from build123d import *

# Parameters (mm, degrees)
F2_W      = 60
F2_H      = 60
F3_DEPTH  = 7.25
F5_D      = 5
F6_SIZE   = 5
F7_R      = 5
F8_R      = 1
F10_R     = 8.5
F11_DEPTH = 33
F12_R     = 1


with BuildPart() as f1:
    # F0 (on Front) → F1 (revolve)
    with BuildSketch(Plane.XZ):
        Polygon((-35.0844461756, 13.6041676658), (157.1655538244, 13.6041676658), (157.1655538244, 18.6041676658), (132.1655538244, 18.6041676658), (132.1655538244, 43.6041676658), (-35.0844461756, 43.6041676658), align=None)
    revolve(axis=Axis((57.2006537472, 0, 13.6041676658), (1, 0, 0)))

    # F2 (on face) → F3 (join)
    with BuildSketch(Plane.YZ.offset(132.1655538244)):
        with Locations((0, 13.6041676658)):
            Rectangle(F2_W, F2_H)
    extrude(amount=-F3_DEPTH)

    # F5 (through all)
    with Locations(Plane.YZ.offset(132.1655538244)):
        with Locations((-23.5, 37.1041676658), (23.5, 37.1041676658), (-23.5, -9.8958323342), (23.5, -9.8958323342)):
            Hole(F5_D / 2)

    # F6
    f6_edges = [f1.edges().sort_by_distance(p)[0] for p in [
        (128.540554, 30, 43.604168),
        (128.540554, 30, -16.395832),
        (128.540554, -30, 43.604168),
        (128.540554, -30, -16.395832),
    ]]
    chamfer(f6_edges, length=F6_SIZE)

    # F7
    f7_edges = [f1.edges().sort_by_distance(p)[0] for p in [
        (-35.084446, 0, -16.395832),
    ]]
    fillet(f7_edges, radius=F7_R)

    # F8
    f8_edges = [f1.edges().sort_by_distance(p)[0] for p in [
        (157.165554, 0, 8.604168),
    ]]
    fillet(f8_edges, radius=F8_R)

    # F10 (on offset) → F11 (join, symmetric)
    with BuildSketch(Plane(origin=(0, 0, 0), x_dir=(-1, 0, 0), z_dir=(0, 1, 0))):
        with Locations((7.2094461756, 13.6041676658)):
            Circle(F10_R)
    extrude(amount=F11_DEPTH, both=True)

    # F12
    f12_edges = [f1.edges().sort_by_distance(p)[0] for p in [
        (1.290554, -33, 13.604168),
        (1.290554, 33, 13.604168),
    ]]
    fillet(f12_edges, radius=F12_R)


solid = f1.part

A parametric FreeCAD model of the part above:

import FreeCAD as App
import Part
import Sketcher
from FreeCAD import Vector
Q = App.Units.Quantity


def edges_at(feature, points):
    """Names of the edges that pass closest to the given points."""
    edges = feature.Shape.Edges
    near = lambda p: min(range(len(edges)), key=lambda i: edges[i].distToShape(Part.Vertex(*p))[0])
    return sorted({f"Edge{near(p) + 1}" for p in points})


def add_polygon(sketch, points):
    """Adds a closed chain of lines whose ends are joined by coincident constraints."""
    first, n = sketch.GeometryCount, len(points)
    for a, b in zip(points, points[1:] + points[:1]):
        sketch.addGeometry(Part.LineSegment(App.Vector(*a, 0), App.Vector(*b, 0)), False)
    for i in range(n):
        sketch.addConstraint(Sketcher.Constraint("Coincident", first + i, 2, first + (i + 1) % n, 1))

doc = App.newDocument("Part")
params = doc.addObject("Spreadsheet::Sheet", "Params")
for row, (alias, value) in enumerate([
    ("sketch1_width", "25 mm"),
    ("sketch1_height", "5 mm"),
    ("sketch1_width2", "192.25 mm"),
    ("revolution_angle", "360 deg"),
    ("sketch2_width", "60 mm"),
    ("pad1_length", "7.25 mm"),
    ("sketch3_diameter", "5 mm"),
    ("hole_diameter", "5 mm"),
    ("chamfer_size", "5 mm"),
    ("fillet_radius", "5 mm"),
    ("fillet2_radius", "1 mm"),
    ("sketch4_diameter", "17 mm"),
    ("pad2_length", "66 mm"),
    ("fillet3_radius", "1 mm"),
], start=1):
    params.set(f"A{row}", alias)
    params.set(f"B{row}", "=" + value)
    params.setAlias(f"B{row}", alias)

body = doc.addObject("PartDesign::Body", "Body")

sketch1 = body.newObject("Sketcher::SketchObject", "Sketch")
sketch1.AttachmentSupport = (doc.getObject("XZ_Plane"), [""])
sketch1.MapMode = "FlatFace"
add_polygon(sketch1, [(-35.1, 13.6), (157.2, 13.6), (157.2, 18.6), (132.2, 18.6), (132.2, 43.6), (-35.1, 43.6)])
sketch1.addGeometry(Part.LineSegment(Vector(-35.1, 13.6, 0), Vector(157.2, 13.6, 0)), True)
sketch1.addConstraint([
    Sketcher.Constraint("Horizontal", 0),
    Sketcher.Constraint("Vertical", 1),
    Sketcher.Constraint("Horizontal", 2),
    Sketcher.Constraint("Vertical", 3),
    Sketcher.Constraint("Horizontal", 4),
    Sketcher.Constraint("Vertical", 5),
    Sketcher.Constraint("Horizontal", 6),
    Sketcher.Constraint("Coincident", 6, 1, 5, 2),
    Sketcher.Constraint("Vertical", 1, 2, 6, 2),
    Sketcher.Constraint("Equal", 2, 3),
    Sketcher.Constraint("DistanceX", 2, 2, 2, 1, Q("25 mm")),
    Sketcher.Constraint("DistanceY", 1, 1, 1, 2, Q("5 mm")),
    Sketcher.Constraint("DistanceX", 0, 1, 0, 2, Q("192.25 mm")),
    Sketcher.Constraint("DistanceX", -1, 1, 0, 2, Q("157.165554 mm")),
    Sketcher.Constraint("DistanceY", -1, 1, 0, 2, Q("13.604168 mm")),
])
sketch1.setExpression("Constraints[16]", "Params.sketch1_width")
sketch1.setExpression("Constraints[17]", "Params.sketch1_height")
sketch1.setExpression("Constraints[18]", "Params.sketch1_width2")
revolution = body.newObject("PartDesign::Revolution", "Revolution")
revolution.Profile = sketch1
revolution.ReferenceAxis = (sketch1, ["Axis0"])
revolution.setExpression("Angle", "Params.revolution_angle")

sketch2 = body.newObject("Sketcher::SketchObject", "Sketch001")
sketch2.AttachmentSupport = (doc.getObject("YZ_Plane"), [""])
sketch2.MapMode = "FlatFace"
sketch2.AttachmentOffset = App.Placement(Vector(0, 0, 132.165554), App.Rotation())
add_polygon(sketch2, [(-30, 44), (-30, -16), (30, -16), (30, 44)])
sketch2.addConstraint([
    Sketcher.Constraint("Vertical", 0),
    Sketcher.Constraint("Horizontal", 1),
    Sketcher.Constraint("Vertical", 2),
    Sketcher.Constraint("Horizontal", 3),
    Sketcher.Constraint("Equal", 3, 0),
    Sketcher.Constraint("DistanceX", 1, 1, 1, 2, Q("60 mm")),
    Sketcher.Constraint("DistanceX", 0, 2, -1, 1, Q("30 mm")),
    Sketcher.Constraint("DistanceY", 0, 2, -1, 1, Q("16.395832 mm")),
])
sketch2.setExpression("Constraints[9]", "Params.sketch2_width")
pad1 = body.newObject("PartDesign::Pad", "Pad")
pad1.Profile = sketch2
pad1.setExpression("Length", "Params.pad1_length")
pad1.Reversed = True

sketch3 = body.newObject("Sketcher::SketchObject", "Sketch002")
sketch3.AttachmentSupport = (doc.getObject("YZ_Plane"), [""])
sketch3.MapMode = "FlatFace"
sketch3.AttachmentOffset = App.Placement(Vector(0, 0, 132.165554), App.Rotation())
sketch3.addGeometry([
    Part.Circle(Vector(-23.5, 37.1, 0), Vector(0, 0, 1), 2.5),
    Part.Circle(Vector(23.5, 37.1, 0), Vector(0, 0, 1), 2.5),
    Part.Circle(Vector(-23.5, -9.9, 0), Vector(0, 0, 1), 2.5),
    Part.Circle(Vector(23.5, -9.9, 0), Vector(0, 0, 1), 2.5),
], False)
sketch3.addConstraint([
    Sketcher.Constraint("Equal", 0, 1),
    Sketcher.Constraint("Equal", 1, 2),
    Sketcher.Constraint("Equal", 2, 3),
    Sketcher.Constraint("Symmetric", 0, 3, 1, 3, -2),
    Sketcher.Constraint("Symmetric", 2, 3, 3, 3, -2),
    Sketcher.Constraint("Vertical", 0, 3, 2, 3),
    Sketcher.Constraint("Diameter", 0, Q("5 mm")),
    Sketcher.Constraint("DistanceX", 0, 3, 1, 3, Q("47 mm")),
    Sketcher.Constraint("DistanceY", 2, 3, 0, 3, Q("47 mm")),
    Sketcher.Constraint("DistanceY", -1, 1, 0, 3, Q("37.104168 mm")),
])
sketch3.setExpression("Constraints[6]", "Params.sketch3_diameter")
doc.recompute()
hole = body.newObject("PartDesign::Hole", "Hole")
hole.Profile = sketch3
hole.ThreadType = "None"
hole.setExpression("Diameter", "Params.hole_diameter")
hole.DepthType = "ThroughAll"
doc.recompute()

chamfer = body.newObject("PartDesign::Chamfer", "Chamfer")
chamfer.Base = (hole, edges_at(hole, [
    (128.541, 30, 43.604),
    (128.541, 30, -16.396),
    (128.541, -30, 43.604),
    (128.541, -30, -16.396),
]))
chamfer.setExpression("Size", "Params.chamfer_size")
doc.recompute()

fillet = body.newObject("PartDesign::Fillet", "Fillet")
fillet.Base = (chamfer, edges_at(chamfer, [(-35.084, 0, -16.396)]))
fillet.setExpression("Radius", "Params.fillet_radius")
doc.recompute()

fillet2 = body.newObject("PartDesign::Fillet", "Fillet001")
fillet2.Base = (fillet, edges_at(fillet, [(157.166, 0, 8.604)]))
fillet2.setExpression("Radius", "Params.fillet2_radius")

sketch4 = body.newObject("Sketcher::SketchObject", "Sketch003")
sketch4.AttachmentSupport = (doc.getObject("XZ_Plane"), [""])
sketch4.MapMode = "FlatFace"
sketch4.addGeometry(Part.Circle(Vector(-7, 14, 0), Vector(0, 0, 1), 8), False)
sketch4.addConstraint([
    Sketcher.Constraint("Diameter", 0, Q("17 mm")),
    Sketcher.Constraint("DistanceX", 0, 3, -1, 1, Q("7.209446 mm")),
    Sketcher.Constraint("DistanceY", -1, 1, 0, 3, Q("13.604168 mm")),
])
sketch4.setExpression("Constraints[0]", "Params.sketch4_diameter")
pad2 = body.newObject("PartDesign::Pad", "Pad001")
pad2.Profile = sketch4
pad2.setExpression("Length", "Params.pad2_length")
pad2.Midplane = True
doc.recompute()

fillet3 = body.newObject("PartDesign::Fillet", "Fillet002")
fillet3.Base = (pad2, edges_at(pad2, [(1.291, -33, 13.604), (1.291, 33, 13.604)]))
fillet3.setExpression("Radius", "Params.fillet3_radius")

doc.recompute()
